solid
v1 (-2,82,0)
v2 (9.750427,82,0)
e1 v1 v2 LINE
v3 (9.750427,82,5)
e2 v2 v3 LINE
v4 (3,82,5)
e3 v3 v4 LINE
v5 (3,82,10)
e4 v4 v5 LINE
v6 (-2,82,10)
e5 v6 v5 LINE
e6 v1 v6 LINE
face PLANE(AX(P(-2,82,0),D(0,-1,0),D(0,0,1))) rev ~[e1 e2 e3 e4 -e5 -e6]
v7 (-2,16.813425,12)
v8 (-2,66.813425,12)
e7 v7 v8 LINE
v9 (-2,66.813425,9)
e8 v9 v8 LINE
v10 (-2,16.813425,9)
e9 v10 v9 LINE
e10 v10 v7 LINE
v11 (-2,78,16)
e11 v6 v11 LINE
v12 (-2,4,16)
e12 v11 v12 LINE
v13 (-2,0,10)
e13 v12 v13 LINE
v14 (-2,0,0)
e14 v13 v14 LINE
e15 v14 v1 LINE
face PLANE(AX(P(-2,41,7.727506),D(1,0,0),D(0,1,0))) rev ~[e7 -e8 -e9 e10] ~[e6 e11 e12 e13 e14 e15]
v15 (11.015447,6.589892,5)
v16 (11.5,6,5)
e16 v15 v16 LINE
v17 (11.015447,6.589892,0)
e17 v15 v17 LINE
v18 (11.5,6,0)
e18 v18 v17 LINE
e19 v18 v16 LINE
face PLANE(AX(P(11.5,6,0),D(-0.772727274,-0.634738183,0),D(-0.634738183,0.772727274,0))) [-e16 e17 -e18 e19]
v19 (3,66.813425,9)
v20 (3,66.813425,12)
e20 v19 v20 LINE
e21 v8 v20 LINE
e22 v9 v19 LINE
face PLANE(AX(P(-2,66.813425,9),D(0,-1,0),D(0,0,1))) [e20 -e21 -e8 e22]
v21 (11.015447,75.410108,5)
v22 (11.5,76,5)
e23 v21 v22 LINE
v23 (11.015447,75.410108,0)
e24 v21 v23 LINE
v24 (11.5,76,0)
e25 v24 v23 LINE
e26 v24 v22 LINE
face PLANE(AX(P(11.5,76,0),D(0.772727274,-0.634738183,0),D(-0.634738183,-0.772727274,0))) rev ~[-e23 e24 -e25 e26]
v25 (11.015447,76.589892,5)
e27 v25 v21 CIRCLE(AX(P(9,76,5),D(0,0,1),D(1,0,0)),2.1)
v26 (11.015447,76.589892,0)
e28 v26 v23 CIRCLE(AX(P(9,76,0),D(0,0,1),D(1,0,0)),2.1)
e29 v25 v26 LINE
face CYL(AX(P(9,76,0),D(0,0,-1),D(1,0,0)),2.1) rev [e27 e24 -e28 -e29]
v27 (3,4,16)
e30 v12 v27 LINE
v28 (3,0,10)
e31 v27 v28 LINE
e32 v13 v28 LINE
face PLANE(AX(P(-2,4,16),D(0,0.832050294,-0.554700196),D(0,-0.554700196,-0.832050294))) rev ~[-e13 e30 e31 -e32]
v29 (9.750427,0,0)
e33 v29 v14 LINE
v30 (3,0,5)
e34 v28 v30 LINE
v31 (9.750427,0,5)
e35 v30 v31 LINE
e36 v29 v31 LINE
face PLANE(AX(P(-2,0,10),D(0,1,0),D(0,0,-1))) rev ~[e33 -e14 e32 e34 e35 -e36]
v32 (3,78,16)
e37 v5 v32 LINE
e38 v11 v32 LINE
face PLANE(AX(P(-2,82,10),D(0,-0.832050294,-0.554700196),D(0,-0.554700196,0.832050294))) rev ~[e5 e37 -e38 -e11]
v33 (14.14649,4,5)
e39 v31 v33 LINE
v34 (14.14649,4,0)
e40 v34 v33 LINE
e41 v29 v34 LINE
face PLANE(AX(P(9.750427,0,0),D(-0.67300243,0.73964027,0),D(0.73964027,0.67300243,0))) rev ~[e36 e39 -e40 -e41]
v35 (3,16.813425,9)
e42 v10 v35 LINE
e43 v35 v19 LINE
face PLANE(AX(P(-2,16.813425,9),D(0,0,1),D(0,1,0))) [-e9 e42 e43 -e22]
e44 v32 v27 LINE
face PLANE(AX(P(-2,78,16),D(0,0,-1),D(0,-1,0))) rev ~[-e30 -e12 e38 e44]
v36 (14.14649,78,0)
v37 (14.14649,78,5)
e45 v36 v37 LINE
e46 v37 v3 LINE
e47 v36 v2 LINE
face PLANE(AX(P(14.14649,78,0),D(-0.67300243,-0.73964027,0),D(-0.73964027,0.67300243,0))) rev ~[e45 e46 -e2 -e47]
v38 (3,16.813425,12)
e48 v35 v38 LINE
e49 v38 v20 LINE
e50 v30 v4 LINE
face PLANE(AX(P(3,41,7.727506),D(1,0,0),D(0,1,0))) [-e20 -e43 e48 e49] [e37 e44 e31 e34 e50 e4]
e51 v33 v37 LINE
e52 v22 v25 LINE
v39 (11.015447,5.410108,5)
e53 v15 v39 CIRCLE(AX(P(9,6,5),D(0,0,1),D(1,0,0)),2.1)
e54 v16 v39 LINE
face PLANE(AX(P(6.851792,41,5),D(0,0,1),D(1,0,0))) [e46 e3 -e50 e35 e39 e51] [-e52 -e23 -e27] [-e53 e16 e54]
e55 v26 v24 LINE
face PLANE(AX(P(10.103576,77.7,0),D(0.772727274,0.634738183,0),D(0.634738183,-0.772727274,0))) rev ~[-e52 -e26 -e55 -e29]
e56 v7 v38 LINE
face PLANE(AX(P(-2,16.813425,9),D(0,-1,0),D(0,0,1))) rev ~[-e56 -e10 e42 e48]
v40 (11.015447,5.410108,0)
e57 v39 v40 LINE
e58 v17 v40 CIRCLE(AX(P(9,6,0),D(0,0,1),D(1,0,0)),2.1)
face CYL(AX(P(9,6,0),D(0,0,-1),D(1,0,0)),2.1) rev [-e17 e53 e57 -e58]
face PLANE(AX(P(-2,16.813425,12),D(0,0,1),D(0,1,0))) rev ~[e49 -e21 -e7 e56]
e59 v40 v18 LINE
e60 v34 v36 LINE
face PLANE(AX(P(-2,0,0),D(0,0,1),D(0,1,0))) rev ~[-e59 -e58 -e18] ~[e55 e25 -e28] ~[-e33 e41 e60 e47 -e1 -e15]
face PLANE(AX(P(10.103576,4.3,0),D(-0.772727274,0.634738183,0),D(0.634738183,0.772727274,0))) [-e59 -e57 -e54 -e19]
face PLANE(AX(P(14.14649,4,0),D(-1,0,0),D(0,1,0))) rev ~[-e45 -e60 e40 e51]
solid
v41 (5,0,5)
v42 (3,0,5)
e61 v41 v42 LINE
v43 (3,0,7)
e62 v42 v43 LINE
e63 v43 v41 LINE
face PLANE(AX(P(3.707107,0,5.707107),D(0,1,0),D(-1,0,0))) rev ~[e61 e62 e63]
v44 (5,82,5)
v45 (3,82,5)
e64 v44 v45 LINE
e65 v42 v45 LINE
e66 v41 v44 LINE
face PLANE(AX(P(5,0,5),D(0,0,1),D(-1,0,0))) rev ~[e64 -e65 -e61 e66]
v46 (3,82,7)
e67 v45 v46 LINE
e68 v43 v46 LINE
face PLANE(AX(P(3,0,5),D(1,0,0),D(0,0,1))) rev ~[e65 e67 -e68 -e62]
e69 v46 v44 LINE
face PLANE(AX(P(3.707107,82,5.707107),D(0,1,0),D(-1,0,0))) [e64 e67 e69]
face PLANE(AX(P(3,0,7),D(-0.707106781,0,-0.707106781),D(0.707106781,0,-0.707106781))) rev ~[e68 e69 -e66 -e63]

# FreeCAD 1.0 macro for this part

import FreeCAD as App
import Part
import Sketcher

V = App.Vector

doc = App.newDocument("Part")
body = doc.addObject("PartDesign::Body", "Body")

# Sketch on XZ plane
sketch1 = body.newObject("Sketcher::SketchObject", "Sketch")
sketch1.AttachmentSupport = (doc.getObject("XZ_Plane"), [""])
sketch1.MapMode = "FlatFace"
sketch1.addGeometry(Part.LineSegment(V(3, 7, 0), V(3, 5, 0)), False)
sketch1.addGeometry(Part.LineSegment(V(3, 5, 0), V(5, 5, 0)), False)
sketch1.addGeometry(Part.LineSegment(V(5, 5, 0), V(3, 7, 0)), False)
sketch1.addConstraint(Sketcher.Constraint("Coincident", 0, 2, 1, 1))
sketch1.addConstraint(Sketcher.Constraint("Coincident", 1, 2, 2, 1))
sketch1.addConstraint(Sketcher.Constraint("Coincident", 2, 2, 0, 1))
sketch1.addConstraint(Sketcher.Constraint("Vertical", 0))
sketch1.addConstraint(Sketcher.Constraint("Horizontal", 1))
sketch1.addConstraint(Sketcher.Constraint("Equal", 1, 0))
sketch1.addConstraint(Sketcher.Constraint("DistanceX", 1, 1, 1, 2, 2.0))
sketch1.addConstraint(Sketcher.Constraint("DistanceX", -1, 1, 0, 2, 3.0))
sketch1.addConstraint(Sketcher.Constraint("DistanceY", -1, 1, 0, 2, 5.0))
pad1 = body.newObject("PartDesign::Pad", "Pad")
pad1.Profile = sketch1
pad1.Length = 82
pad1.Reversed = True
body2 = doc.addObject("PartDesign::Body", "Body001")

# Sketch on YZ plane
sketch2 = body2.newObject("Sketcher::SketchObject", "Sketch001")
sketch2.AttachmentSupport = (doc.getObject("YZ_Plane001"), [""])
sketch2.MapMode = "FlatFace"
sketch2.AttachmentOffset = App.Placement(V(0, 0, -2), App.Rotation())
sketch2.addGeometry(Part.LineSegment(V(0, 0, 0), V(82, 0, 0)), False)
sketch2.addGeometry(Part.LineSegment(V(82, 0, 0), V(82, 10, 0)), False)
sketch2.addGeometry(Part.LineSegment(V(82, 10, 0), V(78, 16, 0)), False)
sketch2.addGeometry(Part.LineSegment(V(78, 16, 0), V(4, 16, 0)), False)
sketch2.addGeometry(Part.LineSegment(V(4, 16, 0), V(0, 10, 0)), False)
sketch2.addGeometry(Part.LineSegment(V(0, 10, 0), V(0, 0, 0)), False)
sketch2.addGeometry(Part.LineSegment(V(66.813425, 9, 0), V(16.813425, 9, 0)), False)
sketch2.addGeometry(Part.LineSegment(V(16.813425, 9, 0), V(16.813425, 12, 0)), False)
sketch2.addGeometry(Part.LineSegment(V(16.813425, 12, 0), V(66.813425, 12, 0)), False)
sketch2.addGeometry(Part.LineSegment(V(66.813425, 12, 0), V(66.813425, 9, 0)), False)
sketch2.addConstraint(Sketcher.Constraint("Coincident", 0, 2, 1, 1))
sketch2.addConstraint(Sketcher.Constraint("Coincident", 1, 2, 2, 1))
sketch2.addConstraint(Sketcher.Constraint("Coincident", 2, 2, 3, 1))
sketch2.addConstraint(Sketcher.Constraint("Coincident", 3, 2, 4, 1))
sketch2.addConstraint(Sketcher.Constraint("Coincident", 4, 2, 5, 1))
sketch2.addConstraint(Sketcher.Constraint("Coincident", 5, 2, 0, 1))
sketch2.addConstraint(Sketcher.Constraint("Coincident", 6, 2, 7, 1))
sketch2.addConstraint(Sketcher.Constraint("Coincident", 7, 2, 8, 1))
sketch2.addConstraint(Sketcher.Constraint("Coincident", 8, 2, 9, 1))
sketch2.addConstraint(Sketcher.Constraint("Coincident", 9, 2, 6, 1))
sketch2.addConstraint(Sketcher.Constraint("Horizontal", 0))
sketch2.addConstraint(Sketcher.Constraint("Vertical", 1))
sketch2.addConstraint(Sketcher.Constraint("Horizontal", 3))
sketch2.addConstraint(Sketcher.Constraint("Vertical", 5))
sketch2.addConstraint(Sketcher.Constraint("Horizontal", 6))
sketch2.addConstraint(Sketcher.Constraint("Vertical", 7))
sketch2.addConstraint(Sketcher.Constraint("Horizontal", 8))
sketch2.addConstraint(Sketcher.Constraint("Vertical", 9))
sketch2.addConstraint(Sketcher.Constraint("Coincident", 5, 2, -1, 1))
sketch2.addConstraint(Sketcher.Constraint("Horizontal", 1, 2, 4, 2))
sketch2.addConstraint(Sketcher.Constraint("Equal", 2, 4))
sketch2.addConstraint(Sketcher.Constraint("DistanceX", 0, 1, 0, 2, 82.0))
sketch2.addConstraint(Sketcher.Constraint("DistanceX", 3, 2, 3, 1, 74.0))
sketch2.addConstraint(Sketcher.Constraint("DistanceX", 6, 2, 6, 1, 50.0))
sketch2.addConstraint(Sketcher.Constraint("DistanceY", 1, 1, 1, 2, 10.0))
sketch2.addConstraint(Sketcher.Constraint("DistanceY", 7, 1, 7, 2, 3.0))
sketch2.addConstraint(Sketcher.Constraint("DistanceY", -1, 1, 2, 2, 16.0))
sketch2.addConstraint(Sketcher.Constraint("DistanceY", -1, 1, 6, 2, 9.0))
sketch2.addConstraint(Sketcher.Constraint("DistanceX", -1, 1, 6, 2, 16.813425))
pad2 = body2.newObject("PartDesign::Pad", "Pad001")
pad2.Profile = sketch2
pad2.Length = 5
body3 = doc.addObject("PartDesign::Body", "Body002")

# Sketch on XY plane
sketch3 = body3.newObject("Sketcher::SketchObject", "Sketch002")
sketch3.AttachmentSupport = (doc.getObject("XY_Plane002"), [""])
sketch3.MapMode = "FlatFace"
sketch3.addGeometry(Part.LineSegment(V(0, 82, 0), V(0, 0, 0)), False)
sketch3.addGeometry(Part.LineSegment(V(0, 0, 0), V(9.750427, 0, 0)), False)
sketch3.addGeometry(Part.LineSegment(V(9.750427, 0, 0), V(14.14649, 4, 0)), False)
sketch3.addGeometry(Part.LineSegment(V(14.14649, 4, 0), V(14.14649, 78, 0)), False)
sketch3.addGeometry(Part.LineSegment(V(14.14649, 78, 0), V(9.750427, 82, 0)), False)
sketch3.addGeometry(Part.LineSegment(V(9.750427, 82, 0), V(0, 82, 0)), False)
sketch3.addGeometry(Part.Circle(V(9, 6, 0), V(0, 0, 1), 2.1), False)
sketch3.addGeometry(Part.Circle(V(9, 76, 0), V(0, 0, 1), 2.1), False)
sketch3.addConstraint(Sketcher.Constraint("Coincident", 0, 2, 1, 1))
sketch3.addConstraint(Sketcher.Constraint("Coincident", 1, 2, 2, 1))
sketch3.addConstraint(Sketcher.Constraint("Coincident", 2, 2, 3, 1))
sketch3.addConstraint(Sketcher.Constraint("Coincident", 3, 2, 4, 1))
sketch3.addConstraint(Sketcher.Constraint("Coincident", 4, 2, 5, 1))
sketch3.addConstraint(Sketcher.Constraint("Coincident", 5, 2, 0, 1))
sketch3.addConstraint(Sketcher.Constraint("Vertical", 0))
sketch3.addConstraint(Sketcher.Constraint("Horizontal", 1))
sketch3.addConstraint(Sketcher.Constraint("Vertical", 3))
sketch3.addConstraint(Sketcher.Constraint("Horizontal", 5))
sketch3.addConstraint(Sketcher.Constraint("Coincident", 0, 2, -1, 1))
sketch3.addConstraint(Sketcher.Constraint("Equal", 6, 7))
sketch3.addConstraint(Sketcher.Constraint("Vertical", 6, 3, 7, 3))
sketch3.addConstraint(Sketcher.Constraint("Vertical", 1, 2, 4, 2))
sketch3.addConstraint(Sketcher.Constraint("Equal", 2, 4))
sketch3.addConstraint(Sketcher.Constraint("Diameter", 6, 4.2))
sketch3.addConstraint(Sketcher.Constraint("DistanceY", 0, 2, 0, 1, 82.0))
sketch3.addConstraint(Sketcher.Constraint("DistanceY", 3, 1, 3, 2, 74.0))
sketch3.addConstraint(Sketcher.Constraint("DistanceX", -1, 1, 6, 3, 9.0))
sketch3.addConstraint(Sketcher.Constraint("DistanceY", -1, 1, 6, 3, 6.0))
sketch3.addConstraint(Sketcher.Constraint("DistanceY", -1, 1, 7, 3, 76.0))
sketch3.addConstraint(Sketcher.Constraint("DistanceX", 1, 1, 1, 2, 9.750427))
sketch3.addConstraint(Sketcher.Constraint("DistanceX", -1, 1, 2, 2, 14.14649))
pad3 = body3.newObject("PartDesign::Pad", "Pad002")
pad3.Profile = sketch3
pad3.Length = 5
doc.recompute()

boolean = body3.newObject("PartDesign::Boolean", "Boolean")
boolean.Type = "Fuse"
boolean.addObjects([body2])

# Sketch on XY plane
sketch4 = body3.newObject("Sketcher::SketchObject", "Sketch003")
sketch4.AttachmentSupport = (doc.getObject("XY_Plane002"), [""])
sketch4.MapMode = "FlatFace"
sketch4.addGeometry(Part.LineSegment(V(11.5, 6, 0), V(10.103576, 4.3, 0)), False)
sketch4.addGeometry(Part.LineSegment(V(10.103576, 4.3, 0), V(10.103576, 7.7, 0)), False)
sketch4.addGeometry(Part.LineSegment(V(10.103576, 7.7, 0), V(11.5, 6, 0)), False)
sketch4.addGeometry(Part.LineSegment(V(10.103576, 74.3, 0), V(10.103576, 77.7, 0)), False)
sketch4.addGeometry(Part.LineSegment(V(10.103576, 77.7, 0), V(11.5, 76, 0)), False)
sketch4.addGeometry(Part.LineSegment(V(11.5, 76, 0), V(10.103576, 74.3, 0)), False)
sketch4.addConstraint(Sketcher.Constraint("Coincident", 0, 2, 1, 1))
sketch4.addConstraint(Sketcher.Constraint("Coincident", 1, 2, 2, 1))
sketch4.addConstraint(Sketcher.Constraint("Coincident", 2, 2, 0, 1))
sketch4.addConstraint(Sketcher.Constraint("Coincident", 3, 2, 4, 1))
sketch4.addConstraint(Sketcher.Constraint("Coincident", 4, 2, 5, 1))
sketch4.addConstraint(Sketcher.Constraint("Coincident", 5, 2, 3, 1))
sketch4.addConstraint(Sketcher.Constraint("Vertical", 1))
sketch4.addConstraint(Sketcher.Constraint("Vertical", 3))
sketch4.addConstraint(Sketcher.Constraint("Parallel", 2, 4))
sketch4.addConstraint(Sketcher.Constraint("Parallel", 0, 5))
sketch4.addConstraint(Sketcher.Constraint("Vertical", 1, 2, 3, 2))
sketch4.addConstraint(Sketcher.Constraint("Vertical", 2, 2, 4, 2))
sketch4.addConstraint(Sketcher.Constraint("Equal", 0, 2))
sketch4.addConstraint(Sketcher.Constraint("DistanceY", 1, 1, 1, 2, 3.4))
sketch4.addConstraint(Sketcher.Constraint("DistanceY", -1, 1, 2, 2, 6.0))
sketch4.addConstraint(Sketcher.Constraint("DistanceY", -1, 1, 4, 2, 76.0))
sketch4.addConstraint(Sketcher.Constraint("Distance", 0, 2.2))
sketch4.addConstraint(Sketcher.Constraint("DistanceX", -1, 1, 2, 2, 11.5))
pocket1 = body3.newObject("PartDesign::Pocket", "Pocket")
pocket1.Profile = sketch4
pocket1.Length = 6
pocket1.Reversed = True

doc.recompute()
